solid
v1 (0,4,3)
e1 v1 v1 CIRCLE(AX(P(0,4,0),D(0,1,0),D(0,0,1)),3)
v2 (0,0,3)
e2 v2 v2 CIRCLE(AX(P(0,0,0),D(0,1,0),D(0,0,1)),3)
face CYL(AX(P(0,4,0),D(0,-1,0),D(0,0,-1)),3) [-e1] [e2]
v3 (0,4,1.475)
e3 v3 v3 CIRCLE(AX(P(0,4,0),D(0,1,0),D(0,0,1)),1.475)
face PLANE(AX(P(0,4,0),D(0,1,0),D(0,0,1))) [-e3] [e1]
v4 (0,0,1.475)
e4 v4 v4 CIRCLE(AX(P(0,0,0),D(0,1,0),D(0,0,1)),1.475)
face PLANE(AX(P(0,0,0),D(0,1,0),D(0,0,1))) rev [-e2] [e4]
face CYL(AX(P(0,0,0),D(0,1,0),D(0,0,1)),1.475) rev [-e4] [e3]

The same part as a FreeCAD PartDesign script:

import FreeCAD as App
import Part
import Sketcher

V = App.Vector
Q = App.Units.Quantity

doc = App.newDocument("Part")
params = doc.addObject("Spreadsheet::Sheet", "Params")
for row, (alias, value) in enumerate([
    ("sketch1_diameter", "6 mm"),
    ("pad1_length", "4 mm"),
    ("sketch2_diameter", "2.95 mm"),
], start=1):
    params.set(f"A{row}", alias)
    params.set(f"B{row}", "=" + value)
    params.setAlias(f"B{row}", alias)

body = doc.addObject("PartDesign::Body", "Body")

# Sketch on XZ plane
sketch1 = body.newObject("Sketcher::SketchObject", "Sketch")
sketch1.AttachmentSupport = (doc.getObject("XZ_Plane"), [""])
sketch1.MapMode = "FlatFace"
sketch1.addGeometry(Part.Circle(V(0, 0, 0), V(0, 0, 1), 3), False)
sketch1.addConstraint([
    Sketcher.Constraint("Coincident", 0, 3, -1, 1),
    Sketcher.Constraint("Diameter", 0, Q("6 mm")),
])
sketch1.setExpression("Constraints[1]", "Params.sketch1_diameter")
pad1 = body.newObject("PartDesign::Pad", "Pad")
pad1.Profile = sketch1
pad1.setExpression("Length", "Params.pad1_length")
pad1.Reversed = True

# Sketch on XZ plane
sketch2 = body.newObject("Sketcher::SketchObject", "Sketch001")
sketch2.AttachmentSupport = (doc.getObject("XZ_Plane"), [""])
sketch2.MapMode = "FlatFace"
sketch2.AttachmentOffset = App.Placement(V(0, 0, -4), App.Rotation())
sketch2.addGeometry(Part.Circle(V(0, 0, 0), V(0, 0, 1), 1.5), False)
sketch2.addConstraint([
    Sketcher.Constraint("Coincident", 0, 3, -1, 1),
    Sketcher.Constraint("Diameter", 0, Q("2.95 mm")),
])
sketch2.setExpression("Constraints[1]", "Params.sketch2_diameter")
pocket1 = body.newObject("PartDesign::Pocket", "Pocket")
pocket1.Profile = sketch2
pocket1.Type = "ThroughAll"
pocket1.Reversed = True

doc.recompute()
